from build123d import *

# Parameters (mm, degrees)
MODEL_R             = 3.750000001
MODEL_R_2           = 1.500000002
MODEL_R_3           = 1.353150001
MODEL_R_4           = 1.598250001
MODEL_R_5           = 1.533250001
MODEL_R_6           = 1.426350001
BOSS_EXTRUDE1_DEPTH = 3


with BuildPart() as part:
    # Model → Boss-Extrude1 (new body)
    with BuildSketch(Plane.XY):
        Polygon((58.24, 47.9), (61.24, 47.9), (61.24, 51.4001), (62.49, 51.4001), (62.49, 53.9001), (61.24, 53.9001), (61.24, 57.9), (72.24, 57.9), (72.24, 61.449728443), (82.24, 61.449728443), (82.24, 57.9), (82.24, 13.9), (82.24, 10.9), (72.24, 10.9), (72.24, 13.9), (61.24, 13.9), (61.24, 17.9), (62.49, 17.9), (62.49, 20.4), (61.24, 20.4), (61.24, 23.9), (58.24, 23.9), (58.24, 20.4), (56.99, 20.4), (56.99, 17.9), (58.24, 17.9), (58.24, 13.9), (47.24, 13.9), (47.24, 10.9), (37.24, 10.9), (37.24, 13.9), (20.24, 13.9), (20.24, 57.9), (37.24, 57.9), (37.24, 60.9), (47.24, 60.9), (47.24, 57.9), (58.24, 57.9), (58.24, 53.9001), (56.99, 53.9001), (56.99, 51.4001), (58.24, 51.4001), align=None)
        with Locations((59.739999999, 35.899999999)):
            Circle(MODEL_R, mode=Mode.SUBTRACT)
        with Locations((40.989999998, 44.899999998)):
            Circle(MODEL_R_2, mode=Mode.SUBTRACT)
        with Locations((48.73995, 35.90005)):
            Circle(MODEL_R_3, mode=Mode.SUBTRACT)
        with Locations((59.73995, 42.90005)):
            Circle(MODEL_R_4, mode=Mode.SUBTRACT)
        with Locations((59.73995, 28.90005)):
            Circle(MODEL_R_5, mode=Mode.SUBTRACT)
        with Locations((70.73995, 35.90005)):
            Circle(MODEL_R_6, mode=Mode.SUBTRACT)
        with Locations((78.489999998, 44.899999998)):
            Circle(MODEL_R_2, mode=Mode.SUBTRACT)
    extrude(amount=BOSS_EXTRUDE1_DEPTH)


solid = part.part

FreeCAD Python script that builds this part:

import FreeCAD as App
import Part
import Sketcher

V = App.Vector


def add_polygon(sketch, points):
    """Adds a closed chain of lines whose ends are joined by coincident constraints."""
    first, n = sketch.GeometryCount, len(points)
    for a, b in zip(points, points[1:] + points[:1]):
        sketch.addGeometry(Part.LineSegment(App.Vector(*a, 0), App.Vector(*b, 0)), False)
    for i in range(n):
        sketch.addConstraint(Sketcher.Constraint("Coincident", first + i, 2, first + (i + 1) % n, 1))

doc = App.newDocument("Part")
body = doc.addObject("PartDesign::Body", "Body")

sketch1 = body.newObject("Sketcher::SketchObject", "Sketch")
sketch1.AttachmentSupport = (doc.getObject("XY_Plane"), [""])
sketch1.MapMode = "FlatFace"
add_polygon(sketch1, [(61.24, 47.9), (58.24, 47.9), (58.24, 51.4001), (56.99, 51.4001), (56.99, 53.9001), (58.24, 53.9001), (58.24, 57.9), (47.24, 57.9), (47.24, 60.9), (37.24, 60.9), (37.24, 57.9), (20.24, 57.9), (20.24, 13.9), (37.24, 13.9), (37.24, 10.9), (47.24, 10.9), (47.24, 13.9), (58.24, 13.9), (58.24, 17.9), (56.99, 17.9), (56.99, 20.4), (58.24, 20.4), (58.24, 23.9), (61.24, 23.9), (61.24, 20.4), (62.49, 20.4), (62.49, 17.9), (61.24, 17.9), (61.24, 13.9), (72.24, 13.9), (72.24, 10.9), (82.24, 10.9), (82.24, 61.449728), (72.24, 61.449728), (72.24, 57.9), (61.24, 57.9), (61.24, 53.9001), (62.49, 53.9001), (62.49, 51.4001), (61.24, 51.4001)])
sketch1.addGeometry(Part.Circle(V(70.73995, 35.90005, 0), V(0, 0, 1), 1.42635), False)
sketch1.addGeometry(Part.Circle(V(59.74, 35.9, 0), V(0, 0, 1), 3.75), False)
sketch1.addGeometry(Part.Circle(V(59.73995, 28.90005, 0), V(0, 0, 1), 1.53325), False)
sketch1.addGeometry(Part.Circle(V(48.73995, 35.90005, 0), V(0, 0, 1), 1.35315), False)
sketch1.addGeometry(Part.Circle(V(78.49, 44.9, 0), V(0, 0, 1), 1.5), False)
sketch1.addGeometry(Part.Circle(V(59.73995, 42.90005, 0), V(0, 0, 1), 1.59825), False)
sketch1.addGeometry(Part.Circle(V(40.99, 44.9, 0), V(0, 0, 1), 1.5), False)
sketch1.addConstraint([
    Sketcher.Constraint("Horizontal", 0),
    Sketcher.Constraint("Vertical", 1),
    Sketcher.Constraint("Horizontal", 2),
    Sketcher.Constraint("Vertical", 3),
    Sketcher.Constraint("Horizontal", 4),
    Sketcher.Constraint("Vertical", 5),
    Sketcher.Constraint("Horizontal", 6),
    Sketcher.Constraint("Vertical", 7),
    Sketcher.Constraint("Horizontal", 8),
    Sketcher.Constraint("Vertical", 9),
    Sketcher.Constraint("Horizontal", 10),
    Sketcher.Constraint("Vertical", 11),
    Sketcher.Constraint("Horizontal", 12),
    Sketcher.Constraint("Vertical", 13),
    Sketcher.Constraint("Horizontal", 14),
    Sketcher.Constraint("Vertical", 15),
    Sketcher.Constraint("Horizontal", 16),
    Sketcher.Constraint("Vertical", 17),
    Sketcher.Constraint("Horizontal", 18),
    Sketcher.Constraint("Vertical", 19),
    Sketcher.Constraint("Horizontal", 20),
    Sketcher.Constraint("Vertical", 21),
    Sketcher.Constraint("Horizontal", 22),
    Sketcher.Constraint("Vertical", 23),
    Sketcher.Constraint("Horizontal", 24),
    Sketcher.Constraint("Vertical", 25),
    Sketcher.Constraint("Horizontal", 26),
    Sketcher.Constraint("Vertical", 27),
    Sketcher.Constraint("Horizontal", 28),
    Sketcher.Constraint("Vertical", 29),
    Sketcher.Constraint("Horizontal", 30),
    Sketcher.Constraint("Vertical", 31),
    Sketcher.Constraint("Horizontal", 32),
    Sketcher.Constraint("Vertical", 33),
    Sketcher.Constraint("Horizontal", 34),
    Sketcher.Constraint("Vertical", 35),
    Sketcher.Constraint("Horizontal", 36),
    Sketcher.Constraint("Vertical", 37),
    Sketcher.Constraint("Horizontal", 38),
    Sketcher.Constraint("Vertical", 39),
    Sketcher.Constraint("Equal", 44, 46),
    Sketcher.Constraint("Horizontal", 40, 3, 43, 3),
    Sketcher.Constraint("Horizontal", 44, 3, 46, 3),
    Sketcher.Constraint("Horizontal", 6, 2, 9, 2),
    Sketcher.Constraint("Horizontal", 12, 2, 15, 2),
    Sketcher.Constraint("Horizontal", 20, 2, 23, 2),
    Sketcher.Constraint("Horizontal", 18, 2, 25, 2),
    Sketcher.Constraint("Horizontal", 16, 2, 27, 2),
    Sketcher.Constraint("Horizontal", 14, 2, 29, 2),
    Sketcher.Constraint("Horizontal", 10, 2, 33, 2),
    Sketcher.Constraint("Horizontal", 4, 2, 35, 2),
    Sketcher.Constraint("Horizontal", 2, 2, 37, 2),
    Sketcher.Constraint("Vertical", 42, 3, 45, 3),
    Sketcher.Constraint("Vertical", 1, 2, 4, 2),
    Sketcher.Constraint("Vertical", 9, 2, 12, 2),
    Sketcher.Constraint("Vertical", 7, 2, 14, 2),
    Sketcher.Constraint("Vertical", 5, 2, 16, 2),
    Sketcher.Constraint("Vertical", 3, 2, 18, 2),
    Sketcher.Constraint("Vertical", 17, 2, 20, 2),
    Sketcher.Constraint("Vertical", 23, 2, 26, 2),
    Sketcher.Constraint("Vertical", 29, 2, 32, 2),
    Sketcher.Constraint("Vertical", 27, 2, 34, 2),
    Sketcher.Constraint("Vertical", 25, 2, 36, 2),
    Sketcher.Constraint("Vertical", 35, 2, 38, 2),
    Sketcher.Constraint("Equal", 20, 24),
    Sketcher.Constraint("Equal", 16, 28),
    Sketcher.Constraint("Equal", 14, 30),
    Sketcher.Constraint("Equal", 22, 7),
    Sketcher.Constraint("Equal", 9, 13),
    Sketcher.Constraint("Equal", 3, 19),
    Sketcher.Constraint("Diameter", 44, 3.0),
    Sketcher.Constraint("Diameter", 41, 7.5),
    Sketcher.Constraint("DistanceX", 0, 2, 0, 1, 3.0),
    Sketcher.Constraint("DistanceX", 6, 2, 6, 1, 11.0),
    Sketcher.Constraint("DistanceX", 8, 2, 8, 1, 10.0),
    Sketcher.Constraint("DistanceX", 10, 2, 10, 1, 17.0),
    Sketcher.Constraint("DistanceY", 11, 2, 11, 1, 44.0),
    Sketcher.Constraint("DistanceY", 17, 1, 17, 2, 4.0),
    Sketcher.Constraint("DistanceY", 3, 1, 3, 2, 2.5),
    Sketcher.Constraint("DistanceY", 21, 1, 21, 2, 3.5),
    Sketcher.Constraint("DistanceX", 42, 3, 40, 3, 11.0),
    Sketcher.Constraint("DistanceY", 42, 3, 40, 3, 7.0),
    Sketcher.Constraint("DistanceX", 43, 3, 42, 3, 11.0),
    Sketcher.Constraint("DistanceY", 41, 3, 44, 3, 9.0),
    Sketcher.Constraint("DistanceY", 40, 3, 45, 3, 7.0),
    Sketcher.Constraint("DistanceY", 41, 3, 0, 2, 12.0),
    Sketcher.Constraint("DistanceX", 46, 3, 2, 2, 16.0),
    Sketcher.Constraint("DistanceY", 0, 2, 5, 2, 10.0),
    Sketcher.Constraint("Diameter", 40, 2.8527),
    Sketcher.Constraint("Diameter", 42, 3.0665),
    Sketcher.Constraint("Diameter", 43, 2.7063),
    Sketcher.Constraint("Diameter", 45, 3.1965),
    Sketcher.Constraint("DistanceX", 2, 2, 2, 1, 1.25),
    Sketcher.Constraint("DistanceY", -1, 1, 41, 3, 35.9),
    Sketcher.Constraint("DistanceX", 0, 2, 41, 3, 1.5),
    Sketcher.Constraint("DistanceX", -1, 1, 41, 3, 59.74),
    Sketcher.Constraint("DistanceX", -1, 1, 44, 3, 78.49),
    Sketcher.Constraint("DistanceY", 1, 1, 1, 2, 3.5001),
    Sketcher.Constraint("DistanceY", 31, 1, 31, 2, 50.549728),
    Sketcher.Constraint("DistanceX", -1, 1, 40, 3, 70.73995),
    Sketcher.Constraint("DistanceY", -1, 1, 40, 3, 35.90005),
])
pad1 = body.newObject("PartDesign::Pad", "Pad")
pad1.Profile = sketch1
pad1.Length = 3

doc.recompute()
